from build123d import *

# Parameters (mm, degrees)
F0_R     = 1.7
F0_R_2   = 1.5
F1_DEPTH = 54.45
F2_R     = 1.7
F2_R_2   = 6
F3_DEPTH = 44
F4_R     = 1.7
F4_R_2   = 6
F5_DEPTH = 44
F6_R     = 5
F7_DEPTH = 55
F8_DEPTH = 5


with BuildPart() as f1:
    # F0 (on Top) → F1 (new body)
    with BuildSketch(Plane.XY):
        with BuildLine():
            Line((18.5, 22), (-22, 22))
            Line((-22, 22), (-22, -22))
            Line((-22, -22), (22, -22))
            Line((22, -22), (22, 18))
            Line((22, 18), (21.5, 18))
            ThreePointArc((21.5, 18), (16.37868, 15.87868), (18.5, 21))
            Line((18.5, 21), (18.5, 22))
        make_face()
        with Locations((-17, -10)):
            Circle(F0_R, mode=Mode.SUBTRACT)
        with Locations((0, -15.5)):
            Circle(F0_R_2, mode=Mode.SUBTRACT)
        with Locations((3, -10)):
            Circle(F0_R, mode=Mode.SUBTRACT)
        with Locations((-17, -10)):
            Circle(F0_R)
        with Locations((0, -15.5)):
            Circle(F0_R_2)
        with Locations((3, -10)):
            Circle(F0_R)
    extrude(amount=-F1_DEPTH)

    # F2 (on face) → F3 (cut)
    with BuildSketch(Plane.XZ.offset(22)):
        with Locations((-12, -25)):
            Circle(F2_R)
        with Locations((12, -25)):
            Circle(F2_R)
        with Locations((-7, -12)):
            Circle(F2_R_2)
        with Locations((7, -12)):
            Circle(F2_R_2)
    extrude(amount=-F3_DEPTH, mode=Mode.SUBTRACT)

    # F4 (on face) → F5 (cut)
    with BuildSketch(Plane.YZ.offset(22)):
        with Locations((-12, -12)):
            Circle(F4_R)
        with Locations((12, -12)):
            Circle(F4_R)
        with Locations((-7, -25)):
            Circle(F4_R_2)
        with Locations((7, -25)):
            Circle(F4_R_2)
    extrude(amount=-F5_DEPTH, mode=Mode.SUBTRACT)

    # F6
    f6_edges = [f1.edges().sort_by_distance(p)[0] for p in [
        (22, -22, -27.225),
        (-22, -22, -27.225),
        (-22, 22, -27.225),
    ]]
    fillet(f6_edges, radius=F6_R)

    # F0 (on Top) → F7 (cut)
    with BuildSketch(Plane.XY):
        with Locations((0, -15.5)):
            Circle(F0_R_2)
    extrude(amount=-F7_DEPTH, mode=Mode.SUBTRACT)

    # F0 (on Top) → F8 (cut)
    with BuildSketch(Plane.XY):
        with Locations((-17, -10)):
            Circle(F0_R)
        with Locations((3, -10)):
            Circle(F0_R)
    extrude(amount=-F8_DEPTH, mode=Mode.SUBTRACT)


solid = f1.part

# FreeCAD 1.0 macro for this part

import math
import FreeCAD as App
import Part
import Sketcher
Q = App.Units.Quantity


def edges_at(feature, points):
    """Names of the edges that pass closest to the given points."""
    edges = feature.Shape.Edges
    near = lambda p: min(range(len(edges)), key=lambda i: edges[i].distToShape(Part.Vertex(*p))[0])
    return sorted({f"Edge{near(p) + 1}" for p in points})

doc = App.newDocument("Part")
body = doc.addObject("PartDesign::Body", "Body")

sketch1 = body.newObject("Sketcher::SketchObject", "Sketch")
sketch1.AttachmentSupport = (doc.getObject("XY_Plane"), [""])
sketch1.MapMode = "FlatFace"
sketch1.addGeometry(Part.LineSegment(App.Vector(18.5, 22, 0), App.Vector(-22, 22, 0)), False)
sketch1.addGeometry(Part.LineSegment(App.Vector(-22, 22, 0), App.Vector(-22, -22, 0)), False)
sketch1.addGeometry(Part.LineSegment(App.Vector(-22, -22, 0), App.Vector(22, -22, 0)), False)
sketch1.addGeometry(Part.LineSegment(App.Vector(22, -22, 0), App.Vector(22, 18, 0)), False)
sketch1.addGeometry(Part.LineSegment(App.Vector(22, 18, 0), App.Vector(21.5, 18, 0)), False)
sketch1.addGeometry(Part.ArcOfCircle(Part.Circle(App.Vector(18.5, 18, 0), App.Vector(0, 0, 1), 3), math.radians(90), math.radians(360)), False)
sketch1.addGeometry(Part.LineSegment(App.Vector(18.5, 21, 0), App.Vector(18.5, 22, 0)), False)
sketch1.addConstraint(Sketcher.Constraint("Coincident", 0, 2, 1, 1))
sketch1.addConstraint(Sketcher.Constraint("Coincident", 1, 2, 2, 1))
sketch1.addConstraint(Sketcher.Constraint("Coincident", 2, 2, 3, 1))
sketch1.addConstraint(Sketcher.Constraint("Coincident", 3, 2, 4, 1))
sketch1.addConstraint(Sketcher.Constraint("Coincident", 4, 2, 5, 2))
sketch1.addConstraint(Sketcher.Constraint("Coincident", 5, 1, 6, 1))
sketch1.addConstraint(Sketcher.Constraint("Coincident", 6, 2, 0, 1))
sketch1.addConstraint(Sketcher.Constraint("Horizontal", 0))
sketch1.addConstraint(Sketcher.Constraint("Vertical", 1))
sketch1.addConstraint(Sketcher.Constraint("Horizontal", 2))
sketch1.addConstraint(Sketcher.Constraint("Vertical", 3))
sketch1.addConstraint(Sketcher.Constraint("Horizontal", 4))
sketch1.addConstraint(Sketcher.Constraint("Vertical", 6))
sketch1.addConstraint(Sketcher.Constraint("Symmetric", 0, 2, 2, 2, -1, 1))
sketch1.addConstraint(Sketcher.Constraint("Horizontal", 5, 3, 3, 2))
sketch1.addConstraint(Sketcher.Constraint("Equal", 2, 1))
sketch1.addConstraint(Sketcher.Constraint("Radius", 5, Q("3 mm")))
sketch1.addConstraint(Sketcher.Constraint("DistanceX", 2, 1, 2, 2, Q("44 mm")))
sketch1.addConstraint(Sketcher.Constraint("DistanceY", 3, 1, 3, 2, Q("40 mm")))
sketch1.addConstraint(Sketcher.Constraint("DistanceX", 0, 2, 0, 1, Q("40.5 mm")))
sketch1.addConstraint(Sketcher.Constraint("DistanceX", 4, 2, 4, 1, Q("0.5 mm")))
pad1 = body.newObject("PartDesign::Pad", "Pad")
pad1.Profile = sketch1
pad1.Length = 54.45
pad1.Reversed = True

sketch2 = body.newObject("Sketcher::SketchObject", "Sketch001")
sketch2.AttachmentSupport = (doc.getObject("XZ_Plane"), [""])
sketch2.MapMode = "FlatFace"
sketch2.AttachmentOffset = App.Placement(App.Vector(0, 0, 22), App.Rotation())
sketch2.addGeometry(Part.Circle(App.Vector(-12, -25, 0), App.Vector(0, 0, 1), 1.7), False)
sketch2.addGeometry(Part.Circle(App.Vector(12, -25, 0), App.Vector(0, 0, 1), 1.7), False)
sketch2.addGeometry(Part.Circle(App.Vector(-7, -12, 0), App.Vector(0, 0, 1), 6), False)
sketch2.addGeometry(Part.Circle(App.Vector(7, -12, 0), App.Vector(0, 0, 1), 6), False)
sketch2.addConstraint(Sketcher.Constraint("Equal", 0, 1))
sketch2.addConstraint(Sketcher.Constraint("Equal", 2, 3))
sketch2.addConstraint(Sketcher.Constraint("Symmetric", 0, 3, 1, 3, -2))
sketch2.addConstraint(Sketcher.Constraint("Symmetric", 2, 3, 3, 3, -2))
sketch2.addConstraint(Sketcher.Constraint("Diameter", 2, Q("12 mm")))
sketch2.addConstraint(Sketcher.Constraint("Diameter", 0, Q("3.4 mm")))
sketch2.addConstraint(Sketcher.Constraint("DistanceX", 0, 3, -1, 1, Q("12 mm")))
sketch2.addConstraint(Sketcher.Constraint("DistanceY", 0, 3, -1, 1, Q("25 mm")))
sketch2.addConstraint(Sketcher.Constraint("DistanceX", 2, 3, -1, 1, Q("7 mm")))
sketch2.addConstraint(Sketcher.Constraint("DistanceY", 2, 3, -1, 1, Q("12 mm")))
pocket1 = body.newObject("PartDesign::Pocket", "Pocket")
pocket1.Profile = sketch2
pocket1.Length = 44

sketch3 = body.newObject("Sketcher::SketchObject", "Sketch002")
sketch3.AttachmentSupport = (doc.getObject("YZ_Plane"), [""])
sketch3.MapMode = "FlatFace"
sketch3.AttachmentOffset = App.Placement(App.Vector(0, 0, 22), App.Rotation())
sketch3.addGeometry(Part.Circle(App.Vector(-12, -12, 0), App.Vector(0, 0, 1), 1.7), False)
sketch3.addGeometry(Part.Circle(App.Vector(12, -12, 0), App.Vector(0, 0, 1), 1.7), False)
sketch3.addGeometry(Part.Circle(App.Vector(-7, -25, 0), App.Vector(0, 0, 1), 6), False)
sketch3.addGeometry(Part.Circle(App.Vector(7, -25, 0), App.Vector(0, 0, 1), 6), False)
sketch3.addConstraint(Sketcher.Constraint("Equal", 0, 1))
sketch3.addConstraint(Sketcher.Constraint("Equal", 2, 3))
sketch3.addConstraint(Sketcher.Constraint("Symmetric", 0, 3, 1, 3, -2))
sketch3.addConstraint(Sketcher.Constraint("Symmetric", 2, 3, 3, 3, -2))
sketch3.addConstraint(Sketcher.Constraint("Diameter", 2, Q("12 mm")))
sketch3.addConstraint(Sketcher.Constraint("Diameter", 0, Q("3.4 mm")))
sketch3.addConstraint(Sketcher.Constraint("DistanceX", 0, 3, -1, 1, Q("12 mm")))
sketch3.addConstraint(Sketcher.Constraint("DistanceY", 0, 3, -1, 1, Q("12 mm")))
sketch3.addConstraint(Sketcher.Constraint("DistanceX", 2, 3, -1, 1, Q("7 mm")))
sketch3.addConstraint(Sketcher.Constraint("DistanceY", 2, 3, -1, 1, Q("25 mm")))
pocket2 = body.newObject("PartDesign::Pocket", "Pocket001")
pocket2.Profile = sketch3
pocket2.Length = 44
doc.recompute()

fillet = body.newObject("PartDesign::Fillet", "Fillet")
fillet.Base = (pocket2, edges_at(pocket2, [(22, -22, -27.225), (-22, -22, -27.225), (-22, 22, -27.225)]))
fillet.Radius = 5

sketch4 = body.newObject("Sketcher::SketchObject", "Sketch003")
sketch4.AttachmentSupport = (doc.getObject("XY_Plane"), [""])
sketch4.MapMode = "FlatFace"
sketch4.addGeometry(Part.Circle(App.Vector(0, -15.5, 0), App.Vector(0, 0, 1), 1.5), False)
sketch4.addConstraint(Sketcher.Constraint("PointOnObject", 0, 3, -2))
sketch4.addConstraint(Sketcher.Constraint("Diameter", 0, Q("3 mm")))
sketch4.addConstraint(Sketcher.Constraint("DistanceY", 0, 3, -1, 1, Q("15.5 mm")))
pocket3 = body.newObject("PartDesign::Pocket", "Pocket002")
pocket3.Profile = sketch4
pocket3.Length = 55

sketch5 = body.newObject("Sketcher::SketchObject", "Sketch004")
sketch5.AttachmentSupport = (doc.getObject("XY_Plane"), [""])
sketch5.MapMode = "FlatFace"
sketch5.addGeometry(Part.Circle(App.Vector(-17, -10, 0), App.Vector(0, 0, 1), 1.7), False)
sketch5.addGeometry(Part.Circle(App.Vector(3, -10, 0), App.Vector(0, 0, 1), 1.7), False)
sketch5.addConstraint(Sketcher.Constraint("Equal", 0, 1))
sketch5.addConstraint(Sketcher.Constraint("Horizontal", 0, 3, 1, 3))
sketch5.addConstraint(Sketcher.Constraint("Diameter", 0, Q("3.4 mm")))
sketch5.addConstraint(Sketcher.Constraint("DistanceX", 0, 3, -1, 1, Q("17 mm")))
sketch5.addConstraint(Sketcher.Constraint("DistanceY", 0, 3, -1, 1, Q("10 mm")))
sketch5.addConstraint(Sketcher.Constraint("DistanceX", -1, 1, 1, 3, Q("3 mm")))
pocket4 = body.newObject("PartDesign::Pocket", "Pocket003")
pocket4.Profile = sketch5
pocket4.Length = 5

doc.recompute()
